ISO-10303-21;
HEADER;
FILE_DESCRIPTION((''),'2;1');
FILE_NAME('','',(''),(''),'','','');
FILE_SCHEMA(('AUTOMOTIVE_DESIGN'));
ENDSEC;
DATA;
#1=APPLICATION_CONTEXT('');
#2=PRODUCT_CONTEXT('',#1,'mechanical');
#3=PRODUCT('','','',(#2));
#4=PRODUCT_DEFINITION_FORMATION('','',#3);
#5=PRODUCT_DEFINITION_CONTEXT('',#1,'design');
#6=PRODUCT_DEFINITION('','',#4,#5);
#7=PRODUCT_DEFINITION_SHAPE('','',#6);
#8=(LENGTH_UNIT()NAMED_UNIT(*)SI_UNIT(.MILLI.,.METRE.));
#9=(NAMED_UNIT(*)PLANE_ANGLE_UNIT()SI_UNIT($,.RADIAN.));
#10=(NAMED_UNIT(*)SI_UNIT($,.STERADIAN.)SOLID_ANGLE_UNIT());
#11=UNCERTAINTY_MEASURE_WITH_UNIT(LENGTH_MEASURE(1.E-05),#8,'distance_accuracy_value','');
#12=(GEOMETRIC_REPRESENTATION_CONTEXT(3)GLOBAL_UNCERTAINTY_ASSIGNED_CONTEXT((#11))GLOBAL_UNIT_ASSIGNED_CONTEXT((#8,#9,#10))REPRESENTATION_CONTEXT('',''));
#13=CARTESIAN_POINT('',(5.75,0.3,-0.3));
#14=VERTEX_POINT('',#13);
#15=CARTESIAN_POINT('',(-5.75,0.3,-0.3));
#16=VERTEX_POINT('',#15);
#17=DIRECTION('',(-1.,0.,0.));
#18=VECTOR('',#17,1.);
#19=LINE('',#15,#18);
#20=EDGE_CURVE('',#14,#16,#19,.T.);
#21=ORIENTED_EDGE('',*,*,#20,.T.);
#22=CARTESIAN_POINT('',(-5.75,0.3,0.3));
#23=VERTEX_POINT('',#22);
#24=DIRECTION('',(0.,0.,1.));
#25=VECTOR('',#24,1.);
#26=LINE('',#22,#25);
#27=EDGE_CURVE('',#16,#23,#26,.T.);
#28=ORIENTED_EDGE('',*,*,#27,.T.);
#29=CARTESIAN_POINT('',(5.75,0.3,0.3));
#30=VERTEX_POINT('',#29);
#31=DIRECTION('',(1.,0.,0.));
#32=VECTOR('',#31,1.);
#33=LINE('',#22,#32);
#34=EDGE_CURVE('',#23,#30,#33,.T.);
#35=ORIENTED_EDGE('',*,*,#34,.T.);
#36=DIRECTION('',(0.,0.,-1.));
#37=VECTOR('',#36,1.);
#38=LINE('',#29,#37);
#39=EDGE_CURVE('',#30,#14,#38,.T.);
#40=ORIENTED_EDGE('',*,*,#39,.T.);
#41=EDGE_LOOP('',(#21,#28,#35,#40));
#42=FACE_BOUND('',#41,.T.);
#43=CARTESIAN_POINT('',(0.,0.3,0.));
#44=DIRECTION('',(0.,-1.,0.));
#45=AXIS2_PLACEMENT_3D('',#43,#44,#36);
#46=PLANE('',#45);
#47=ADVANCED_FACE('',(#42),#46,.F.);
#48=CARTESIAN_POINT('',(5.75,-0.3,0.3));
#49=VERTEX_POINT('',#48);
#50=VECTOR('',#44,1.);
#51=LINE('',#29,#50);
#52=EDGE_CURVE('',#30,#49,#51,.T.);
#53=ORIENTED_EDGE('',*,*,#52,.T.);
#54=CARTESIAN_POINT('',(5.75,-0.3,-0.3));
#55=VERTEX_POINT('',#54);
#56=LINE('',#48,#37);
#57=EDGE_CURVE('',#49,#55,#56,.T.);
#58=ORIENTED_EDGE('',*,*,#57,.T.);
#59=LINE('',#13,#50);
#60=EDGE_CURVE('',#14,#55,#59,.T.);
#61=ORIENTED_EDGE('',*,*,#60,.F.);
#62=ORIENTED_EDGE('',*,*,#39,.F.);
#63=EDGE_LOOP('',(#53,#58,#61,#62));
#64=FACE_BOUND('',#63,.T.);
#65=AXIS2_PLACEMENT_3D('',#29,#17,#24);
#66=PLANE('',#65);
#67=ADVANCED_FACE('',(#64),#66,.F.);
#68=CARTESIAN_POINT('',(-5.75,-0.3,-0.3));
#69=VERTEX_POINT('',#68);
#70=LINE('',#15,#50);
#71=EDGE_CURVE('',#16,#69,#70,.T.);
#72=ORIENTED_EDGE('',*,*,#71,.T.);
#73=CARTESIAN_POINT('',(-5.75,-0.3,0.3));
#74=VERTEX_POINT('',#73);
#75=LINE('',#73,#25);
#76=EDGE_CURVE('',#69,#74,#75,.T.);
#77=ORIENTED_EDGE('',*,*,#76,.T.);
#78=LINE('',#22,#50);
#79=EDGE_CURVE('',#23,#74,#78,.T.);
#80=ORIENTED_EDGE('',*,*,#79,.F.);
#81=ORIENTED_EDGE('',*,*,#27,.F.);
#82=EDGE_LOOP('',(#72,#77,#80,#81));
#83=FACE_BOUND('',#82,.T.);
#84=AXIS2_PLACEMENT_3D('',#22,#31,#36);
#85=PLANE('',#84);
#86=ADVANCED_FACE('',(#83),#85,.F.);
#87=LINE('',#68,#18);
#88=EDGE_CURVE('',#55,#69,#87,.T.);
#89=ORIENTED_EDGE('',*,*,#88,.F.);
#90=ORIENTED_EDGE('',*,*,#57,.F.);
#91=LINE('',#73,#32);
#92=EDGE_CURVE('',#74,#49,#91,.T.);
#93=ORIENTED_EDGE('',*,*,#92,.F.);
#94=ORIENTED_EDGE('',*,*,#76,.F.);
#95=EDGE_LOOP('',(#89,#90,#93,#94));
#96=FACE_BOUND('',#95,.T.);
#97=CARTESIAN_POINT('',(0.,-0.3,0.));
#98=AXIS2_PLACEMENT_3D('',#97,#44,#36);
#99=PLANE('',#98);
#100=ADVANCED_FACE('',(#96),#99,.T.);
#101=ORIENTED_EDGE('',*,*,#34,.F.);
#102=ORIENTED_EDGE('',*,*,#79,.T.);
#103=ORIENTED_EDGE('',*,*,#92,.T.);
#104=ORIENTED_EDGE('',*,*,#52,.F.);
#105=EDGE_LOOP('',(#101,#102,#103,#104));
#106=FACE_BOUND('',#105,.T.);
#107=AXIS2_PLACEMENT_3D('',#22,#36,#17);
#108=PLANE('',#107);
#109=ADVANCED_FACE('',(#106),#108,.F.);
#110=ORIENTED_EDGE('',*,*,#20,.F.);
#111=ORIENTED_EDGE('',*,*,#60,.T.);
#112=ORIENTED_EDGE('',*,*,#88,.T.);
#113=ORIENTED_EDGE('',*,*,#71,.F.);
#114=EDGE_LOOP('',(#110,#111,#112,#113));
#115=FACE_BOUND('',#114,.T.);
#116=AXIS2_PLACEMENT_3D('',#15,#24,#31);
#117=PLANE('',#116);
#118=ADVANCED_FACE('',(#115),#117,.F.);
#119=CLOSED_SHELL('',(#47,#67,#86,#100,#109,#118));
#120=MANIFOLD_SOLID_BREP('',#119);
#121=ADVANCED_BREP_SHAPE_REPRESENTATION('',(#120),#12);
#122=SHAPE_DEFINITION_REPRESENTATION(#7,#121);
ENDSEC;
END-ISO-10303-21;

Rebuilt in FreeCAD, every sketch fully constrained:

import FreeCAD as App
import Part
import Sketcher

doc = App.newDocument("Part")
body = doc.addObject("PartDesign::Body", "Body")

# Sketch on XZ plane
sketch1 = doc.addObject("Sketcher::SketchObject", "Sketch")
body.addObject(sketch1)
sketch1.AttachmentSupport = (doc.XZ_Plane, [""])
sketch1.MapMode = "FlatFace"
sketch1.addGeometry(Part.LineSegment(App.Vector(-5.8, -0.3, 0), App.Vector(-5.8, 0.3, 0)), False)
sketch1.addGeometry(Part.LineSegment(App.Vector(-5.8, 0.3, 0), App.Vector(5.8, 0.3, 0)), False)
sketch1.addGeometry(Part.LineSegment(App.Vector(5.8, 0.3, 0), App.Vector(5.8, -0.3, 0)), False)
sketch1.addGeometry(Part.LineSegment(App.Vector(5.8, -0.3, 0), App.Vector(-5.8, -0.3, 0)), False)
sketch1.addConstraint(Sketcher.Constraint("Coincident", 0, 2, 1, 1))
sketch1.addConstraint(Sketcher.Constraint("Coincident", 1, 2, 2, 1))
sketch1.addConstraint(Sketcher.Constraint("Coincident", 2, 2, 3, 1))
sketch1.addConstraint(Sketcher.Constraint("Coincident", 3, 2, 0, 1))
sketch1.addConstraint(Sketcher.Constraint("Vertical", 0))
sketch1.addConstraint(Sketcher.Constraint("Horizontal", 1))
sketch1.addConstraint(Sketcher.Constraint("Vertical", 2))
sketch1.addConstraint(Sketcher.Constraint("Horizontal", 3))
sketch1.addConstraint(Sketcher.Constraint("Symmetric", 0, 2, 2, 2, -1, 1))
sketch1.addConstraint(Sketcher.Constraint("DistanceX", 1, 1, 1, 2, 11.5))
sketch1.addConstraint(Sketcher.Constraint("DistanceY", 0, 1, 0, 2, 0.6))
pad1 = doc.addObject("PartDesign::Pad", "Pad")
body.addObject(pad1)
pad1.Profile = sketch1
pad1.Length = 0.6
pad1.Midplane = True

doc.recompute()
